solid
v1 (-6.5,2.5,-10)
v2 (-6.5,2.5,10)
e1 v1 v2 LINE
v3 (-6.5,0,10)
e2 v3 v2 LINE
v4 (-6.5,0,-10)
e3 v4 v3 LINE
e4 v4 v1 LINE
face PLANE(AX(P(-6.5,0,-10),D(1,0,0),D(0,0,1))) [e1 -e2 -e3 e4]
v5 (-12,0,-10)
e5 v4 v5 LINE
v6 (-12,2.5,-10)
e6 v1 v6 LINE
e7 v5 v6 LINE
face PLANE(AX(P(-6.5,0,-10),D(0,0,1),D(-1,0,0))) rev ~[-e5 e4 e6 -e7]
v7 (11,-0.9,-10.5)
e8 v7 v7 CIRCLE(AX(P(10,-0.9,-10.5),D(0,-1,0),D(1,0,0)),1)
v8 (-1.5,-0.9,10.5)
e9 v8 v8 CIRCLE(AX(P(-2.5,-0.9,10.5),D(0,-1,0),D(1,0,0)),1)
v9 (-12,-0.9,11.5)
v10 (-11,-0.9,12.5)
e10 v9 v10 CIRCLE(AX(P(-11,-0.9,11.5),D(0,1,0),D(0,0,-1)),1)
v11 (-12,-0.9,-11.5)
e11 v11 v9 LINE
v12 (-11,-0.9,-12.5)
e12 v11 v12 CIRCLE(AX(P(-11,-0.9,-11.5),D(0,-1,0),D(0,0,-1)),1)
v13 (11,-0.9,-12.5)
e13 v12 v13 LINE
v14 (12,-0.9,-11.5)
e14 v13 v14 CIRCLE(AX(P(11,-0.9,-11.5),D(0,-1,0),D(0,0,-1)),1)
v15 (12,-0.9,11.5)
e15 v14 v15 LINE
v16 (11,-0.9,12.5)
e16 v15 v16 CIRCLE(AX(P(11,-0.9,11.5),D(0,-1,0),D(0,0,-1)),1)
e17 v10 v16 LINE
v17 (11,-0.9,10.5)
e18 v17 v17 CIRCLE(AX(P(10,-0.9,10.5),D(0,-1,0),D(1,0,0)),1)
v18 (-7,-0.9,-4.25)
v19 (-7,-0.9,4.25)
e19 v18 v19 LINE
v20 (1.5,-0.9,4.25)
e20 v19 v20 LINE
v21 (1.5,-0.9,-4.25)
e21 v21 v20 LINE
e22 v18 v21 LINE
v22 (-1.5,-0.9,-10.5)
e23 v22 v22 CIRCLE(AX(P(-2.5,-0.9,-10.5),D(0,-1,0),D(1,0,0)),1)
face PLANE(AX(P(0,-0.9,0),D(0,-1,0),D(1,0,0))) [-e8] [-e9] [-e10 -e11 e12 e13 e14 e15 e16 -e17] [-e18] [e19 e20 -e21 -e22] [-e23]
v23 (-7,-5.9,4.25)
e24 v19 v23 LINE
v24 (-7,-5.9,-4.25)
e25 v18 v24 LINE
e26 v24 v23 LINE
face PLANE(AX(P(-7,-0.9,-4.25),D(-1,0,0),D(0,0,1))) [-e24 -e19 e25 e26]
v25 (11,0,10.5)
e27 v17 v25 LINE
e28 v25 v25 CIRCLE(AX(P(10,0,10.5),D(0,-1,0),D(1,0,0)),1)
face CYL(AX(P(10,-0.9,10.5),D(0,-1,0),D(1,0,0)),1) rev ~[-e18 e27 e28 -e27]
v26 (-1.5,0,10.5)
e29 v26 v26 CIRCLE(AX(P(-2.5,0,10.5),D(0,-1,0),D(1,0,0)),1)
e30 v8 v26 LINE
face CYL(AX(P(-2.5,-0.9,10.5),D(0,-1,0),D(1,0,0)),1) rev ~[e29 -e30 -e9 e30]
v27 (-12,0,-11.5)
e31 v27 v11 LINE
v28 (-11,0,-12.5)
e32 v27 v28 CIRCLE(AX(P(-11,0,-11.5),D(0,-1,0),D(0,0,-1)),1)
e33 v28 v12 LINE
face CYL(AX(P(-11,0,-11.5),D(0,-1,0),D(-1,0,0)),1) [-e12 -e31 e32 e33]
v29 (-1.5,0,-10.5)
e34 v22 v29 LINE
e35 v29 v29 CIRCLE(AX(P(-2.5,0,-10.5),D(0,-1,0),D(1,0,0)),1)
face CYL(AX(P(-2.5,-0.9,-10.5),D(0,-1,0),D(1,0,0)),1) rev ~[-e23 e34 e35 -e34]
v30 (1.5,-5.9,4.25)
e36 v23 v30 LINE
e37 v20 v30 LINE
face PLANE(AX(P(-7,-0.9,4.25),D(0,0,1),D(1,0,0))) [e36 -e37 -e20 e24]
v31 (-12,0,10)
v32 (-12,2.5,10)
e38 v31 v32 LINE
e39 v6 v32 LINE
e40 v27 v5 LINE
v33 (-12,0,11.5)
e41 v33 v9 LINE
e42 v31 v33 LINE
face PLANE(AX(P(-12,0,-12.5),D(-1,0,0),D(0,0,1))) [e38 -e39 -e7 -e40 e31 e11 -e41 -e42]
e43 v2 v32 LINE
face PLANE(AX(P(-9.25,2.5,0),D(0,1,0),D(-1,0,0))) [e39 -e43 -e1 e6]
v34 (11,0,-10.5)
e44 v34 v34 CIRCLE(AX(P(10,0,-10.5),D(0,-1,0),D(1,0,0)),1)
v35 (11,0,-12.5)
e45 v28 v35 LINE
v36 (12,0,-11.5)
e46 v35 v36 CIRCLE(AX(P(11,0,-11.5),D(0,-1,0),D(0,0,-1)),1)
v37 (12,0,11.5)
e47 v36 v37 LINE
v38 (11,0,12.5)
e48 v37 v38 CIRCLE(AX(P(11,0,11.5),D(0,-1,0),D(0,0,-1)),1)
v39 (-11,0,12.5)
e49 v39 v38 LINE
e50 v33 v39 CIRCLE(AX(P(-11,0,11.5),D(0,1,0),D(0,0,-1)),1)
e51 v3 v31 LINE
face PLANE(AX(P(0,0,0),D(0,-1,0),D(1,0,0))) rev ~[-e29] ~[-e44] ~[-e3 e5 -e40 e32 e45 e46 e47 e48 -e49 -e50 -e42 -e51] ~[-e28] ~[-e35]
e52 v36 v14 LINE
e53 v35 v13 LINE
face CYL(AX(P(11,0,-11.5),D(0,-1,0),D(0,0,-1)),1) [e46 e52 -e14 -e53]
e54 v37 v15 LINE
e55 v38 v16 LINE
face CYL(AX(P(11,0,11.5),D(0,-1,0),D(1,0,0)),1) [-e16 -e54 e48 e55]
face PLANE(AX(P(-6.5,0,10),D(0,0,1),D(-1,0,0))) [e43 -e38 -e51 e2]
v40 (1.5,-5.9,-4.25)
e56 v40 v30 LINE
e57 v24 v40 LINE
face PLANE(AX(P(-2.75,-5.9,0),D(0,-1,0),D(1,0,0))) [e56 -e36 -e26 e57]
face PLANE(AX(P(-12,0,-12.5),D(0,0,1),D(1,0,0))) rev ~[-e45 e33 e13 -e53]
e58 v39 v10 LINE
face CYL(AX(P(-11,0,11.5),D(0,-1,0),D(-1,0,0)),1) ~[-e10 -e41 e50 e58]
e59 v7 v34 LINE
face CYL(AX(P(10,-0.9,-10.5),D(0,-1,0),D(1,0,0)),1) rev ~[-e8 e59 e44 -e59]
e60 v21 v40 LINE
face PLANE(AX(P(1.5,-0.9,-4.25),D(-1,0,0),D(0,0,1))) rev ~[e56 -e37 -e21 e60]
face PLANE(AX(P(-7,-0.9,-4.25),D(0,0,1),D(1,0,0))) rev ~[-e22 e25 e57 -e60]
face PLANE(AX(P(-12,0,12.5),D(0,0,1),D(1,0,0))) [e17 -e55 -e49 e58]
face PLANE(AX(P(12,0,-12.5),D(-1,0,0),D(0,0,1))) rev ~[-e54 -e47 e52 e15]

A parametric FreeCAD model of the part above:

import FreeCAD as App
import Part
import Sketcher


def edges_at(feature, points):
    """Names of the edges that pass closest to the given points."""
    edges = feature.Shape.Edges
    near = lambda p: min(range(len(edges)), key=lambda i: edges[i].distToShape(Part.Vertex(*p))[0])
    return sorted({f"Edge{near(p) + 1}" for p in points})

doc = App.newDocument("Part")
body = doc.addObject("PartDesign::Body", "Body")

sketch1 = doc.addObject("Sketcher::SketchObject", "Sketch")
body.addObject(sketch1)
sketch1.AttachmentSupport = (doc.XZ_Plane, [""])
sketch1.MapMode = "FlatFace"
sketch1.addGeometry([
    Part.LineSegment(App.Vector(-12, 12.5, 0), App.Vector(-12, -12.5, 0)),
    Part.LineSegment(App.Vector(-12, -12.5, 0), App.Vector(12, -12.5, 0)),
    Part.LineSegment(App.Vector(12, -12.5, 0), App.Vector(12, 12.5, 0)),
    Part.LineSegment(App.Vector(12, 12.5, 0), App.Vector(-12, 12.5, 0)),
], False)
sketch1.addConstraint([
    Sketcher.Constraint("Coincident", 0, 2, 1, 1),
    Sketcher.Constraint("Coincident", 1, 2, 2, 1),
    Sketcher.Constraint("Coincident", 2, 2, 3, 1),
    Sketcher.Constraint("Coincident", 3, 2, 0, 1),
    Sketcher.Constraint("Vertical", 0),
    Sketcher.Constraint("Horizontal", 1),
    Sketcher.Constraint("Vertical", 2),
    Sketcher.Constraint("Horizontal", 3),
    Sketcher.Constraint("Symmetric", 0, 2, 2, 2, -1, 1),
    Sketcher.Constraint("DistanceX", 1, 1, 1, 2, 24.0),
    Sketcher.Constraint("DistanceY", 0, 2, 0, 1, 25.0),
])
pad1 = doc.addObject("PartDesign::Pad", "Pad")
body.addObject(pad1)
pad1.Profile = sketch1
pad1.Length = 0.9
doc.recompute()

fillet = doc.addObject("PartDesign::Fillet", "Fillet")
body.addObject(fillet)
fillet.Base = (pad1, edges_at(pad1, [
    (12, -0.45, 12.5),
    (12, -0.45, -12.5),
    (-12, -0.45, -12.5),
    (-12, -0.45, 12.5),
]))
fillet.Radius = 1

sketch2 = doc.addObject("Sketcher::SketchObject", "Sketch001")
body.addObject(sketch2)
sketch2.AttachmentSupport = (doc.XZ_Plane, [""])
sketch2.MapMode = "FlatFace"
sketch2.AttachmentOffset = App.Placement(App.Vector(0, 0, 0.9), App.Rotation())
sketch2.addGeometry([
    Part.LineSegment(App.Vector(-7, 4.25, 0), App.Vector(-7, -4.25, 0)),
    Part.LineSegment(App.Vector(-7, -4.25, 0), App.Vector(1.5, -4.25, 0)),
    Part.LineSegment(App.Vector(1.5, -4.25, 0), App.Vector(1.5, 4.25, 0)),
    Part.LineSegment(App.Vector(1.5, 4.25, 0), App.Vector(-7, 4.25, 0)),
], False)
sketch2.addConstraint([
    Sketcher.Constraint("Coincident", 0, 2, 1, 1),
    Sketcher.Constraint("Coincident", 1, 2, 2, 1),
    Sketcher.Constraint("Coincident", 2, 2, 3, 1),
    Sketcher.Constraint("Coincident", 3, 2, 0, 1),
    Sketcher.Constraint("Vertical", 0),
    Sketcher.Constraint("Horizontal", 1),
    Sketcher.Constraint("Vertical", 2),
    Sketcher.Constraint("Horizontal", 3),
    Sketcher.Constraint("Equal", 3, 0),
    Sketcher.Constraint("DistanceX", 1, 1, 1, 2, 8.5),
    Sketcher.Constraint("DistanceX", 0, 2, -1, 1, 7.0),
    Sketcher.Constraint("DistanceY", 0, 2, -1, 1, 4.25),
])
pad2 = doc.addObject("PartDesign::Pad", "Pad001")
body.addObject(pad2)
pad2.Profile = sketch2
pad2.Length = 5

sketch3 = doc.addObject("Sketcher::SketchObject", "Sketch002")
body.addObject(sketch3)
sketch3.AttachmentSupport = (doc.XZ_Plane, [""])
sketch3.MapMode = "FlatFace"
sketch3.AttachmentOffset = App.Placement(App.Vector(0, 0, 0.9), App.Rotation())
sketch3.addGeometry([
    Part.Circle(App.Vector(10, 10.5, 0), App.Vector(0, 0, 1), 1),
    Part.Circle(App.Vector(-2.5, 10.5, 0), App.Vector(0, 0, 1), 1),
    Part.Circle(App.Vector(-2.5, -10.5, 0), App.Vector(0, 0, 1), 1),
    Part.Circle(App.Vector(10, -10.5, 0), App.Vector(0, 0, 1), 1),
], False)
sketch3.addConstraint([
    Sketcher.Constraint("Equal", 0, 1),
    Sketcher.Constraint("Equal", 1, 2),
    Sketcher.Constraint("Equal", 2, 3),
    Sketcher.Constraint("Symmetric", 1, 3, 2, 3, -1),
    Sketcher.Constraint("Symmetric", 0, 3, 3, 3, -1),
    Sketcher.Constraint("Horizontal", 0, 3, 1, 3),
    Sketcher.Constraint("Diameter", 0, 2.0),
    Sketcher.Constraint("DistanceX", -1, 1, 0, 3, 10.0),
    Sketcher.Constraint("DistanceY", 2, 3, 1, 3, 21.0),
    Sketcher.Constraint("DistanceX", 1, 3, -1, 1, 2.5),
])
pocket1 = doc.addObject("PartDesign::Pocket", "Pocket")
body.addObject(pocket1)
pocket1.Profile = sketch3
pocket1.Type = "ThroughAll"

sketch4 = doc.addObject("Sketcher::SketchObject", "Sketch003")
body.addObject(sketch4)
sketch4.AttachmentSupport = (doc.XZ_Plane, [""])
sketch4.MapMode = "FlatFace"
sketch4.addGeometry([
    Part.LineSegment(App.Vector(-6.5, 10, 0), App.Vector(-6.5, -10, 0)),
    Part.LineSegment(App.Vector(-6.5, -10, 0), App.Vector(-12, -10, 0)),
    Part.LineSegment(App.Vector(-12, -10, 0), App.Vector(-12, 10, 0)),
    Part.LineSegment(App.Vector(-12, 10, 0), App.Vector(-6.5, 10, 0)),
], False)
sketch4.addConstraint([
    Sketcher.Constraint("Coincident", 0, 2, 1, 1),
    Sketcher.Constraint("Coincident", 1, 2, 2, 1),
    Sketcher.Constraint("Coincident", 2, 2, 3, 1),
    Sketcher.Constraint("Coincident", 3, 2, 0, 1),
    Sketcher.Constraint("Vertical", 0),
    Sketcher.Constraint("Horizontal", 1),
    Sketcher.Constraint("Vertical", 2),
    Sketcher.Constraint("Horizontal", 3),
    Sketcher.Constraint("DistanceY", 0, 2, 0, 1, 20.0),
    Sketcher.Constraint("DistanceX", 1, 2, 1, 1, 5.5),
    Sketcher.Constraint("DistanceY", 0, 2, -1, 1, 10.0),
    Sketcher.Constraint("DistanceX", 1, 2, -1, 1, 12.0),
])
pad3 = doc.addObject("PartDesign::Pad", "Pad002")
body.addObject(pad3)
pad3.Profile = sketch4
pad3.Length = 2.5
pad3.Reversed = True

doc.recompute()
